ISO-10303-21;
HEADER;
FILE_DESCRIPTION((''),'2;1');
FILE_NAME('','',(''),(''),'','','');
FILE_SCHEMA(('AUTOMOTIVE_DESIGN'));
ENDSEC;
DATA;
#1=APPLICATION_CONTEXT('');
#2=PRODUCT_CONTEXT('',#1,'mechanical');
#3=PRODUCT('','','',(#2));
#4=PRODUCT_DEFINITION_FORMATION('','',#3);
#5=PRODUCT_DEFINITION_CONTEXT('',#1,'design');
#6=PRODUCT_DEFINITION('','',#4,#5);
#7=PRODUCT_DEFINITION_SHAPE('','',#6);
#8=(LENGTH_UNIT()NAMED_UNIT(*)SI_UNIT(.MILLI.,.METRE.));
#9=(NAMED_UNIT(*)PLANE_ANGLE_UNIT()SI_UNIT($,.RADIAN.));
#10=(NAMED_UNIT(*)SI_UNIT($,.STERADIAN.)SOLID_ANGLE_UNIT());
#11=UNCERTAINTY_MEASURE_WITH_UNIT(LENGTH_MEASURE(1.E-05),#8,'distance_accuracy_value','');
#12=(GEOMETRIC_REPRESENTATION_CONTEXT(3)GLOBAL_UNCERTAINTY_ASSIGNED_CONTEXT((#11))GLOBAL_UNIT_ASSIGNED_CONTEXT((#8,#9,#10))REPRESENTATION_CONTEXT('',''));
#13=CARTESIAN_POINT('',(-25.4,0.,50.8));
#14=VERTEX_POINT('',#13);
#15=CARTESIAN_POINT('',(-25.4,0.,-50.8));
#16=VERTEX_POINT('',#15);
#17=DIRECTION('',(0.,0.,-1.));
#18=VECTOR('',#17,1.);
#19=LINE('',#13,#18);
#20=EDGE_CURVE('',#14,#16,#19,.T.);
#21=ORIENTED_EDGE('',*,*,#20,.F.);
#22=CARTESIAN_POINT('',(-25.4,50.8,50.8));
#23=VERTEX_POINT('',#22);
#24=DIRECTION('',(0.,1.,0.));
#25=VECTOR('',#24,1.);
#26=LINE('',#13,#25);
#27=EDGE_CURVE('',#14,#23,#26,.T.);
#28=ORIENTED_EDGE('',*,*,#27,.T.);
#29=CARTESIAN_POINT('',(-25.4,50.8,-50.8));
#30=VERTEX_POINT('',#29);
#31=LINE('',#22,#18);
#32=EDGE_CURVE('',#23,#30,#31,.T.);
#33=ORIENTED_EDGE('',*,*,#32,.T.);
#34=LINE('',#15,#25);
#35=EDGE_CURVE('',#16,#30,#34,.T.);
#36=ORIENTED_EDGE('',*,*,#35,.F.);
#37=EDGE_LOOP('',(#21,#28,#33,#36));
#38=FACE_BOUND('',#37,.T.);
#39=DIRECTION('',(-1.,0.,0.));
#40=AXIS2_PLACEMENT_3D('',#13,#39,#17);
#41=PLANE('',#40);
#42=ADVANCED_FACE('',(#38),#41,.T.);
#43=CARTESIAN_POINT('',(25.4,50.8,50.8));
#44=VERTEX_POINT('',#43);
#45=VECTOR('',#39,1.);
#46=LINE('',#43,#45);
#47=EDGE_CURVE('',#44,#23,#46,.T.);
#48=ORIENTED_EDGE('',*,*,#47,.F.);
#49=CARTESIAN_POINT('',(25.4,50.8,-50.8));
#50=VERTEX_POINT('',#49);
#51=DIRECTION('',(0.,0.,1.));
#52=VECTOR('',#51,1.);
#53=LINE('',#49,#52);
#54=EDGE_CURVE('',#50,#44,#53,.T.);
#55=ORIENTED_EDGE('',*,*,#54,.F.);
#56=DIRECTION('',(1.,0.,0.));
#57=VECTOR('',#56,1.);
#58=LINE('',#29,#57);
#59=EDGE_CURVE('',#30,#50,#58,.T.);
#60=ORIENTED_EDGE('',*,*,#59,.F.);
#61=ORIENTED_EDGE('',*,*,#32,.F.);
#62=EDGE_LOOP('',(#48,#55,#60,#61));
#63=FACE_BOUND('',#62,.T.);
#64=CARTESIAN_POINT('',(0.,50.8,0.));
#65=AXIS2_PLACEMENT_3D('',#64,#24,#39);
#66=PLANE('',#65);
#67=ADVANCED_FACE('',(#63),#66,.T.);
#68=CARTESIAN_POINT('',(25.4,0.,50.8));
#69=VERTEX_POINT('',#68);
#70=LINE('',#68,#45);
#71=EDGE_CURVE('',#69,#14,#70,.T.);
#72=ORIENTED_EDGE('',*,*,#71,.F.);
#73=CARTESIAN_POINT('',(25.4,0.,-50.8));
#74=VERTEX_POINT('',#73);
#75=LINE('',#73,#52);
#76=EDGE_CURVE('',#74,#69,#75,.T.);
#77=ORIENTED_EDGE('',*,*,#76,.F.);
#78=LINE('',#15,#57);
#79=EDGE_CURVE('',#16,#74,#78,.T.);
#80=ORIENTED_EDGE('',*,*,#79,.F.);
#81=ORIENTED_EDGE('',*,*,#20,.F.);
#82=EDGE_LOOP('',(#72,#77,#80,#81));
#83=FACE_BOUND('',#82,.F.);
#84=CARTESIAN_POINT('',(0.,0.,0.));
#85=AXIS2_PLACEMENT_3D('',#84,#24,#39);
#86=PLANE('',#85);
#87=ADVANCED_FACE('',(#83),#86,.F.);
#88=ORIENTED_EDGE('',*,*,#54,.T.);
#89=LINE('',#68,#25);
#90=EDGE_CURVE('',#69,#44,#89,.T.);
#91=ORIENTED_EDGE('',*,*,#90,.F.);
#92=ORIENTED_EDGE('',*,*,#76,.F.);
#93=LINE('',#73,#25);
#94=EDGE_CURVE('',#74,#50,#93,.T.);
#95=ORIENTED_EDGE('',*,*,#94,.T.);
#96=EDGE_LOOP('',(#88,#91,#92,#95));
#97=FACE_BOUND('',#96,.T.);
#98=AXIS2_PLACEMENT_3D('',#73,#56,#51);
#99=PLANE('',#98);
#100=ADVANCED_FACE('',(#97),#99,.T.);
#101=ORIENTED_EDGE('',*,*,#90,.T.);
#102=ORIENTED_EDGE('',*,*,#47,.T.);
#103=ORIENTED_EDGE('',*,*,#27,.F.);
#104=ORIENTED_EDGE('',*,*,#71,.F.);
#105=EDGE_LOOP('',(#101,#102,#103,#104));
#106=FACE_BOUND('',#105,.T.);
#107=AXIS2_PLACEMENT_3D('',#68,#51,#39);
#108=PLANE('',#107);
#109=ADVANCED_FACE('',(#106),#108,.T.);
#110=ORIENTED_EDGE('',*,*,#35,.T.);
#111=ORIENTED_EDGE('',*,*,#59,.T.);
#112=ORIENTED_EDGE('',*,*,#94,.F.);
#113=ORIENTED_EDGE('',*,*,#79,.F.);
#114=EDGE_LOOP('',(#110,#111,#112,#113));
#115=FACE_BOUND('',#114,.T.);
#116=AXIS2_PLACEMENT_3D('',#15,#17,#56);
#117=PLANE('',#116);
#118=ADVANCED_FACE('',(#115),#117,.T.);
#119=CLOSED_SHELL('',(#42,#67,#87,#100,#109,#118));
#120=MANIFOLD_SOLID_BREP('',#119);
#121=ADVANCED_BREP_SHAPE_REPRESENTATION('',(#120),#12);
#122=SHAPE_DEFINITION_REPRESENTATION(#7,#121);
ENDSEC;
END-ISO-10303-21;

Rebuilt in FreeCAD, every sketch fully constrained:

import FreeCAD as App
import Part
import Sketcher

V = App.Vector
Q = App.Units.Quantity


def add_polygon(sketch, points):
    """Adds a closed chain of lines whose ends are joined by coincident constraints."""
    first, n = sketch.GeometryCount, len(points)
    for a, b in zip(points, points[1:] + points[:1]):
        sketch.addGeometry(Part.LineSegment(App.Vector(*a, 0), App.Vector(*b, 0)), False)
    for i in range(n):
        sketch.addConstraint(Sketcher.Constraint("Coincident", first + i, 2, first + (i + 1) % n, 1))

doc = App.newDocument("Part")
body = doc.addObject("PartDesign::Body", "Body")

# Sketch on XZ plane
sketch1 = body.newObject("Sketcher::SketchObject", "Sketch")
sketch1.AttachmentSupport = (doc.getObject("XZ_Plane"), [""])
sketch1.MapMode = "FlatFace"
add_polygon(sketch1, [(-25.4, 50.8), (25.4, 50.8), (25.4, -50.8), (-25.4, -50.8)])  # lines 0-3
sketch1.addConstraint(Sketcher.Constraint("Horizontal", 0))
sketch1.addConstraint(Sketcher.Constraint("Vertical", 1))
sketch1.addConstraint(Sketcher.Constraint("Horizontal", 2))
sketch1.addConstraint(Sketcher.Constraint("Vertical", 3))
sketch1.addConstraint(Sketcher.Constraint("Symmetric", 0, 2, 2, 2, -1, 1))
sketch1.addConstraint(Sketcher.Constraint("DistanceX", 0, 1, 0, 2, Q("2 in")))
sketch1.addConstraint(Sketcher.Constraint("DistanceY", 1, 2, 1, 1, Q("4 in")))
pad1 = body.newObject("PartDesign::Pad", "Pad")
pad1.Profile = sketch1
pad1.Length = Q("2 in")
pad1.Reversed = True

doc.recompute()
